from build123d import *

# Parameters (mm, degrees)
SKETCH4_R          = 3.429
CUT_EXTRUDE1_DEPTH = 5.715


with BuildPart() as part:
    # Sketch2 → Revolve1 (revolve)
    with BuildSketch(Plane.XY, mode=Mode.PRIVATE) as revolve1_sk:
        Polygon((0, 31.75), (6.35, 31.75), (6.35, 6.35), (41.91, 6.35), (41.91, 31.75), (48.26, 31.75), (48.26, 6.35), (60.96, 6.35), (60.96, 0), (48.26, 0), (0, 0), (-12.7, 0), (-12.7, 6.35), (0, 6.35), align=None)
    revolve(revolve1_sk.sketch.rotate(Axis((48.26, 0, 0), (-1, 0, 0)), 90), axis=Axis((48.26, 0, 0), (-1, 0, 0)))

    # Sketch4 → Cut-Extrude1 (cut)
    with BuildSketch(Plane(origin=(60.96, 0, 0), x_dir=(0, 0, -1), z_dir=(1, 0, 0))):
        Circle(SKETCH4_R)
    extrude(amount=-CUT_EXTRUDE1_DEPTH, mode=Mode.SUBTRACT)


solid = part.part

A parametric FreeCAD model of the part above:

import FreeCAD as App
import Part
import Sketcher

V = App.Vector
Q = App.Units.Quantity

doc = App.newDocument("Part")
params = doc.addObject("Spreadsheet::Sheet", "Params")
for row, (alias, value) in enumerate([
    ("sketch1_height", "1 in"),
    ("sketch1_width", "0.5 in"),
    ("sketch1_width2", "2.9 in"),
    ("sketch1_width3", "1.4 in"),
    ("revolution_angle", "360 deg"),
    ("sketch2_diameter", "0.27 in"),
    ("pocket1_length", "0.225 in"),
], start=1):
    params.set(f"A{row}", alias)
    params.set(f"B{row}", "=" + value)
    params.setAlias(f"B{row}", alias)

body = doc.addObject("PartDesign::Body", "Body")

sketch1 = body.newObject("Sketcher::SketchObject", "Sketch")
sketch1.AttachmentSupport = (doc.getObject("XY_Plane"), [""])
sketch1.MapMode = "FlatFace"
sketch1.addGeometry([
    Part.LineSegment(V(6, 32, 0), V(0, 32, 0)),
    Part.LineSegment(V(0, 32, 0), V(0, 6, 0)),
    Part.LineSegment(V(0, 6, 0), V(-13, 6, 0)),
    Part.LineSegment(V(-13, 6, 0), V(-13, 0, 0)),
    Part.LineSegment(V(-13, 0, 0), V(61, 0, 0)),
    Part.LineSegment(V(61, 0, 0), V(61, 6, 0)),
    Part.LineSegment(V(61, 6, 0), V(48, 6, 0)),
    Part.LineSegment(V(48, 6, 0), V(48, 32, 0)),
    Part.LineSegment(V(48, 32, 0), V(42, 32, 0)),
    Part.LineSegment(V(42, 32, 0), V(42, 6, 0)),
    Part.LineSegment(V(42, 6, 0), V(6, 6, 0)),
    Part.LineSegment(V(6, 6, 0), V(6, 32, 0)),
], False)
sketch1.addConstraint([
    Sketcher.Constraint("Coincident", 0, 2, 1, 1),
    Sketcher.Constraint("Coincident", 1, 2, 2, 1),
    Sketcher.Constraint("Coincident", 2, 2, 3, 1),
    Sketcher.Constraint("Coincident", 3, 2, 4, 1),
    Sketcher.Constraint("Coincident", 4, 2, 5, 1),
    Sketcher.Constraint("Coincident", 5, 2, 6, 1),
    Sketcher.Constraint("Coincident", 6, 2, 7, 1),
    Sketcher.Constraint("Coincident", 7, 2, 8, 1),
    Sketcher.Constraint("Coincident", 8, 2, 9, 1),
    Sketcher.Constraint("Coincident", 9, 2, 10, 1),
    Sketcher.Constraint("Coincident", 10, 2, 11, 1),
    Sketcher.Constraint("Coincident", 11, 2, 0, 1),
    Sketcher.Constraint("Horizontal", 0),
    Sketcher.Constraint("Vertical", 1),
    Sketcher.Constraint("Horizontal", 2),
    Sketcher.Constraint("Vertical", 3),
    Sketcher.Constraint("Horizontal", 4),
    Sketcher.Constraint("Vertical", 5),
    Sketcher.Constraint("Horizontal", 6),
    Sketcher.Constraint("Vertical", 7),
    Sketcher.Constraint("Horizontal", 8),
    Sketcher.Constraint("Vertical", 9),
    Sketcher.Constraint("Horizontal", 10),
    Sketcher.Constraint("Vertical", 11),
    Sketcher.Constraint("PointOnObject", 0, 2, -2),
    Sketcher.Constraint("PointOnObject", 3, 2, -1),
    Sketcher.Constraint("Horizontal", 2, 2, 5, 2),
    Sketcher.Constraint("Horizontal", 0, 2, 7, 2),
    Sketcher.Constraint("Horizontal", 6, 2, 9, 2),
    Sketcher.Constraint("Equal", 2, 6),
    Sketcher.Constraint("Equal", 0, 8),
    Sketcher.Constraint("Equal", 8, 3),
    Sketcher.Constraint("DistanceY", 1, 2, 1, 1, Q("1 in")),
    Sketcher.Constraint("DistanceX", 2, 2, 2, 1, Q("0.5 in")),
    Sketcher.Constraint("DistanceX", 4, 1, 4, 2, Q("2.9 in")),
    Sketcher.Constraint("DistanceX", 10, 2, 10, 1, Q("1.4 in")),
])
sketch1.setExpression("Constraints[32]", "Params.sketch1_height")
sketch1.setExpression("Constraints[33]", "Params.sketch1_width")
sketch1.setExpression("Constraints[34]", "Params.sketch1_width2")
sketch1.setExpression("Constraints[35]", "Params.sketch1_width3")
revolution = body.newObject("PartDesign::Revolution", "Revolution")
revolution.Profile = sketch1
revolution.ReferenceAxis = (sketch1, ["H_Axis"])
revolution.setExpression("Angle", "Params.revolution_angle")

sketch2 = body.newObject("Sketcher::SketchObject", "Sketch001")
sketch2.AttachmentSupport = (doc.getObject("YZ_Plane"), [""])
sketch2.MapMode = "FlatFace"
sketch2.AttachmentOffset = App.Placement(V(0, 0, 2.4 * 25.4), App.Rotation())
sketch2.addGeometry(Part.Circle(V(0, 0, 0), V(0, 0, 1), 3.4), False)
sketch2.addConstraint([
    Sketcher.Constraint("Coincident", 0, 3, -1, 1),
    Sketcher.Constraint("Diameter", 0, Q("0.27 in")),
])
sketch2.setExpression("Constraints[1]", "Params.sketch2_diameter")
pocket1 = body.newObject("PartDesign::Pocket", "Pocket")
pocket1.Profile = sketch2
pocket1.setExpression("Length", "Params.pocket1_length")

doc.recompute()
